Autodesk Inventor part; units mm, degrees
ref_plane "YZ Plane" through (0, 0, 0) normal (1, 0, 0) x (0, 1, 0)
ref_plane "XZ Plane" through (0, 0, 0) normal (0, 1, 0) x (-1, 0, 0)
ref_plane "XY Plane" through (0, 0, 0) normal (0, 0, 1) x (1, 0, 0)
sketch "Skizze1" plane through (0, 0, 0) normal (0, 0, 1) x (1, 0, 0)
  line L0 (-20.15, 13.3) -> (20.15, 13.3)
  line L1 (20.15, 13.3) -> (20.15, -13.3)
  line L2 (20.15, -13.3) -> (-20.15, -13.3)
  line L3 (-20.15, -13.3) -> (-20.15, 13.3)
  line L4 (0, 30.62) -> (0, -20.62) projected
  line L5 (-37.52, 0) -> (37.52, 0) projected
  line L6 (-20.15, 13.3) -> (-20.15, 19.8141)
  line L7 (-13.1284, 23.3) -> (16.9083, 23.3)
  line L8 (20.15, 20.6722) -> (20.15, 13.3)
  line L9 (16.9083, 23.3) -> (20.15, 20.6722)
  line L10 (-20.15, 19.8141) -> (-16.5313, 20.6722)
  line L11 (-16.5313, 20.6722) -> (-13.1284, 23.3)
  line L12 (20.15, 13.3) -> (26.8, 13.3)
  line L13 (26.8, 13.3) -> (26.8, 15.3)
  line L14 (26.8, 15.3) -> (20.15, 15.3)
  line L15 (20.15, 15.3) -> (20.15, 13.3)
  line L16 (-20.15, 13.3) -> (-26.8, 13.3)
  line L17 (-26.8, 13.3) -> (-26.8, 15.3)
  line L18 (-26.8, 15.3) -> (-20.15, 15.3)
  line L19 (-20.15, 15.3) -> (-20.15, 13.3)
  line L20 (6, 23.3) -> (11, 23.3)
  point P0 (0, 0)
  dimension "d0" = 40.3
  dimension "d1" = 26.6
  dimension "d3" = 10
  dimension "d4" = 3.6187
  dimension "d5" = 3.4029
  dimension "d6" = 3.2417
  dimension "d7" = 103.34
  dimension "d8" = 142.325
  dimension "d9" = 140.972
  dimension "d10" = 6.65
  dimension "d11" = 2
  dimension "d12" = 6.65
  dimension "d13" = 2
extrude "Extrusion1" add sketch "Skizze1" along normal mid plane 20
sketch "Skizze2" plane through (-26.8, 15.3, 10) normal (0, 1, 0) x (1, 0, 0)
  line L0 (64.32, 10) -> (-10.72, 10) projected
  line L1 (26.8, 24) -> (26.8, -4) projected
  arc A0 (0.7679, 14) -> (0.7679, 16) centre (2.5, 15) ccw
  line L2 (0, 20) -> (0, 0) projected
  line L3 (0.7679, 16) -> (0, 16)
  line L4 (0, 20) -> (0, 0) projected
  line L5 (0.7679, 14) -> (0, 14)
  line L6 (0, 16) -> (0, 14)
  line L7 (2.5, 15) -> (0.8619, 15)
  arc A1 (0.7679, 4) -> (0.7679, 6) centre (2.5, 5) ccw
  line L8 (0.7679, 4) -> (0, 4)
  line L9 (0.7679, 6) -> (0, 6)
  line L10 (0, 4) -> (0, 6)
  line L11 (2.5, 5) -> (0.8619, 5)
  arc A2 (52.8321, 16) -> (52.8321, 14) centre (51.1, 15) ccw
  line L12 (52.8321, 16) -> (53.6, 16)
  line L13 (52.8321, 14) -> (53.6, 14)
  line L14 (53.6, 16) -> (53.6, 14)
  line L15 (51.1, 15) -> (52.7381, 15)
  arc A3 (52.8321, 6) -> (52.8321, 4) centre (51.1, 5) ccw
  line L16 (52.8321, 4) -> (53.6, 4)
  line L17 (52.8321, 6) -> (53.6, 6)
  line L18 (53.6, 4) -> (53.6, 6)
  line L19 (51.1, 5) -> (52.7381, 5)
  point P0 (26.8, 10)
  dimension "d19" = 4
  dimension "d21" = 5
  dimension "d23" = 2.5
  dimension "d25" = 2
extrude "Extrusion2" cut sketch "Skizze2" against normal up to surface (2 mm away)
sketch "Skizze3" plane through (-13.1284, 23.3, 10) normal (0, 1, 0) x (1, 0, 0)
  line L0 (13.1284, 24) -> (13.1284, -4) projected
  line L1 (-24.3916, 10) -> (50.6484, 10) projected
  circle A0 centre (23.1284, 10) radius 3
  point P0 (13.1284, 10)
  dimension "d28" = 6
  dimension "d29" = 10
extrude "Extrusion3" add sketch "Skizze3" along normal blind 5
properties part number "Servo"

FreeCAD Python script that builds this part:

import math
import FreeCAD as App
import Part
import Sketcher
Q = App.Units.Quantity

doc = App.newDocument("Part")
body = doc.addObject("PartDesign::Body", "Body")

sketch1 = doc.addObject("Sketcher::SketchObject", "Sketch")
body.addObject(sketch1)
sketch1.AttachmentSupport = (doc.XY_Plane, [""])
sketch1.MapMode = "FlatFace"
sketch1.addGeometry(Part.LineSegment(App.Vector(-20.1, 19.8, 0), App.Vector(-20.1, 15.3, 0)), False)
sketch1.addGeometry(Part.LineSegment(App.Vector(-20.1, 15.3, 0), App.Vector(-26.8, 15.3, 0)), False)
sketch1.addGeometry(Part.LineSegment(App.Vector(-26.8, 15.3, 0), App.Vector(-26.8, 13.3, 0)), False)
sketch1.addGeometry(Part.LineSegment(App.Vector(-26.8, 13.3, 0), App.Vector(-20.1, 13.3, 0)), False)
sketch1.addGeometry(Part.LineSegment(App.Vector(-20.1, 13.3, 0), App.Vector(-20.1, -13.3, 0)), False)
sketch1.addGeometry(Part.LineSegment(App.Vector(-20.1, -13.3, 0), App.Vector(20.1, -13.3, 0)), False)
sketch1.addGeometry(Part.LineSegment(App.Vector(20.1, -13.3, 0), App.Vector(20.1, 13.3, 0)), False)
sketch1.addGeometry(Part.LineSegment(App.Vector(20.1, 13.3, 0), App.Vector(26.8, 13.3, 0)), False)
sketch1.addGeometry(Part.LineSegment(App.Vector(26.8, 13.3, 0), App.Vector(26.8, 15.3, 0)), False)
sketch1.addGeometry(Part.LineSegment(App.Vector(26.8, 15.3, 0), App.Vector(20.1, 15.3, 0)), False)
sketch1.addGeometry(Part.LineSegment(App.Vector(20.1, 15.3, 0), App.Vector(20.1, 20.7, 0)), False)
sketch1.addGeometry(Part.LineSegment(App.Vector(20.1, 20.7, 0), App.Vector(16.9, 23.3, 0)), False)
sketch1.addGeometry(Part.LineSegment(App.Vector(16.9, 23.3, 0), App.Vector(-13.1, 23.3, 0)), False)
sketch1.addGeometry(Part.LineSegment(App.Vector(-13.1, 23.3, 0), App.Vector(-16.5, 20.7, 0)), False)
sketch1.addGeometry(Part.LineSegment(App.Vector(-16.5, 20.7, 0), App.Vector(-20.1, 19.8, 0)), False)
sketch1.addConstraint(Sketcher.Constraint("Coincident", 0, 2, 1, 1))
sketch1.addConstraint(Sketcher.Constraint("Coincident", 1, 2, 2, 1))
sketch1.addConstraint(Sketcher.Constraint("Coincident", 2, 2, 3, 1))
sketch1.addConstraint(Sketcher.Constraint("Coincident", 3, 2, 4, 1))
sketch1.addConstraint(Sketcher.Constraint("Coincident", 4, 2, 5, 1))
sketch1.addConstraint(Sketcher.Constraint("Coincident", 5, 2, 6, 1))
sketch1.addConstraint(Sketcher.Constraint("Coincident", 6, 2, 7, 1))
sketch1.addConstraint(Sketcher.Constraint("Coincident", 7, 2, 8, 1))
sketch1.addConstraint(Sketcher.Constraint("Coincident", 8, 2, 9, 1))
sketch1.addConstraint(Sketcher.Constraint("Coincident", 9, 2, 10, 1))
sketch1.addConstraint(Sketcher.Constraint("Coincident", 10, 2, 11, 1))
sketch1.addConstraint(Sketcher.Constraint("Coincident", 11, 2, 12, 1))
sketch1.addConstraint(Sketcher.Constraint("Coincident", 12, 2, 13, 1))
sketch1.addConstraint(Sketcher.Constraint("Coincident", 13, 2, 14, 1))
sketch1.addConstraint(Sketcher.Constraint("Coincident", 14, 2, 0, 1))
sketch1.addConstraint(Sketcher.Constraint("Vertical", 0))
sketch1.addConstraint(Sketcher.Constraint("Horizontal", 1))
sketch1.addConstraint(Sketcher.Constraint("Vertical", 2))
sketch1.addConstraint(Sketcher.Constraint("Horizontal", 3))
sketch1.addConstraint(Sketcher.Constraint("Vertical", 4))
sketch1.addConstraint(Sketcher.Constraint("Horizontal", 5))
sketch1.addConstraint(Sketcher.Constraint("Vertical", 6))
sketch1.addConstraint(Sketcher.Constraint("Horizontal", 7))
sketch1.addConstraint(Sketcher.Constraint("Vertical", 8))
sketch1.addConstraint(Sketcher.Constraint("Horizontal", 9))
sketch1.addConstraint(Sketcher.Constraint("Vertical", 10))
sketch1.addConstraint(Sketcher.Constraint("Horizontal", 12))
sketch1.addConstraint(Sketcher.Constraint("Symmetric", 3, 2, 5, 2, -1, 1))
sketch1.addConstraint(Sketcher.Constraint("Symmetric", 2, 2, 7, 2, -2))
sketch1.addConstraint(Sketcher.Constraint("Symmetric", 0, 2, 9, 2, -2))
sketch1.addConstraint(Sketcher.Constraint("Horizontal", 10, 2, 13, 2))
sketch1.addConstraint(Sketcher.Constraint("Vertical", 0, 2, 3, 2))
sketch1.addConstraint(Sketcher.Constraint("DistanceY", 2, 2, 2, 1, Q("2 mm")))
sketch1.addConstraint(Sketcher.Constraint("DistanceX", 5, 1, 5, 2, Q("40.3 mm")))
sketch1.addConstraint(Sketcher.Constraint("DistanceY", 4, 2, 4, 1, Q("26.6 mm")))
sketch1.addConstraint(Sketcher.Constraint("DistanceY", 6, 2, 11, 2, Q("10 mm")))
sketch1.addConstraint(Sketcher.Constraint("DistanceX", 1, 2, 1, 1, Q("6.65 mm")))
sketch1.addConstraint(Sketcher.Constraint("DistanceX", 13, 2, 12, 2, Q("3.403 mm")))
sketch1.addConstraint(Sketcher.Constraint("Angle", 11, Q("140.971 deg")))
sketch1.addConstraint(Sketcher.Constraint("Angle", 14, Q("-166.66 deg")))
sketch1.addConstraint(Sketcher.Constraint("DistanceX", 11, 2, 10, 2, Q("3.2417 mm")))
sketch1.addConstraint(Sketcher.Constraint("DistanceX", 0, 2, 13, 2, Q("3.6187 mm")))
pad1 = doc.addObject("PartDesign::Pad", "Pad")
body.addObject(pad1)
pad1.Profile = sketch1
pad1.Length = 20
pad1.Midplane = True

sketch2 = doc.addObject("Sketcher::SketchObject", "Sketch001")
body.addObject(sketch2)
sketch2.AttachmentSupport = (doc.XZ_Plane, [""])
sketch2.MapMode = "FlatFace"
sketch2.AttachmentOffset = App.Placement(App.Vector(0, 0, -15.3), App.Rotation())
sketch2.addGeometry(Part.LineSegment(App.Vector(-26.8, -4, 0), App.Vector(-26, -4, 0)), False)
sketch2.addGeometry(Part.ArcOfCircle(Part.Circle(App.Vector(-24.3, -5, 0), App.Vector(0, 0, 1), 2), math.radians(-150), math.radians(150)), False)
sketch2.addGeometry(Part.LineSegment(App.Vector(-26, -6, 0), App.Vector(-26.8, -6, 0)), False)
sketch2.addGeometry(Part.LineSegment(App.Vector(-26.8, -6, 0), App.Vector(-26.8, -4, 0)), False)
sketch2.addGeometry(Part.LineSegment(App.Vector(-26, 4, 0), App.Vector(-26.8, 4, 0)), False)
sketch2.addGeometry(Part.LineSegment(App.Vector(-26.8, 4, 0), App.Vector(-26.8, 6, 0)), False)
sketch2.addGeometry(Part.LineSegment(App.Vector(-26.8, 6, 0), App.Vector(-26, 6, 0)), False)
sketch2.addGeometry(Part.ArcOfCircle(Part.Circle(App.Vector(-24.3, 5, 0), App.Vector(0, 0, 1), 2), math.radians(-150), math.radians(150)), False)
sketch2.addGeometry(Part.LineSegment(App.Vector(26.8, -6, 0), App.Vector(26, -6, 0)), False)
sketch2.addGeometry(Part.ArcOfCircle(Part.Circle(App.Vector(24.3, -5, 0), App.Vector(0, 0, 1), 2), math.radians(30), math.radians(330)), False)
sketch2.addGeometry(Part.LineSegment(App.Vector(26, -4, 0), App.Vector(26.8, -4, 0)), False)
sketch2.addGeometry(Part.LineSegment(App.Vector(26.8, -4, 0), App.Vector(26.8, -6, 0)), False)
sketch2.addGeometry(Part.LineSegment(App.Vector(26.8, 4, 0), App.Vector(26, 4, 0)), False)
sketch2.addGeometry(Part.ArcOfCircle(Part.Circle(App.Vector(24.3, 5, 0), App.Vector(0, 0, 1), 2), math.radians(30), math.radians(330)), False)
sketch2.addGeometry(Part.LineSegment(App.Vector(26, 6, 0), App.Vector(26.8, 6, 0)), False)
sketch2.addGeometry(Part.LineSegment(App.Vector(26.8, 6, 0), App.Vector(26.8, 4, 0)), False)
sketch2.addConstraint(Sketcher.Constraint("Coincident", 0, 2, 1, 2))
sketch2.addConstraint(Sketcher.Constraint("Coincident", 1, 1, 2, 1))
sketch2.addConstraint(Sketcher.Constraint("Coincident", 2, 2, 3, 1))
sketch2.addConstraint(Sketcher.Constraint("Coincident", 3, 2, 0, 1))
sketch2.addConstraint(Sketcher.Constraint("Coincident", 4, 2, 5, 1))
sketch2.addConstraint(Sketcher.Constraint("Coincident", 5, 2, 6, 1))
sketch2.addConstraint(Sketcher.Constraint("Coincident", 6, 2, 7, 2))
sketch2.addConstraint(Sketcher.Constraint("Coincident", 7, 1, 4, 1))
sketch2.addConstraint(Sketcher.Constraint("Coincident", 8, 2, 9, 2))
sketch2.addConstraint(Sketcher.Constraint("Coincident", 9, 1, 10, 1))
sketch2.addConstraint(Sketcher.Constraint("Coincident", 10, 2, 11, 1))
sketch2.addConstraint(Sketcher.Constraint("Coincident", 11, 2, 8, 1))
sketch2.addConstraint(Sketcher.Constraint("Coincident", 12, 2, 13, 2))
sketch2.addConstraint(Sketcher.Constraint("Coincident", 13, 1, 14, 1))
sketch2.addConstraint(Sketcher.Constraint("Coincident", 14, 2, 15, 1))
sketch2.addConstraint(Sketcher.Constraint("Coincident", 15, 2, 12, 1))
sketch2.addConstraint(Sketcher.Constraint("Horizontal", 0))
sketch2.addConstraint(Sketcher.Constraint("Horizontal", 2))
sketch2.addConstraint(Sketcher.Constraint("Vertical", 3))
sketch2.addConstraint(Sketcher.Constraint("Horizontal", 4))
sketch2.addConstraint(Sketcher.Constraint("Vertical", 5))
sketch2.addConstraint(Sketcher.Constraint("Horizontal", 6))
sketch2.addConstraint(Sketcher.Constraint("Horizontal", 8))
sketch2.addConstraint(Sketcher.Constraint("Horizontal", 10))
sketch2.addConstraint(Sketcher.Constraint("Vertical", 11))
sketch2.addConstraint(Sketcher.Constraint("Horizontal", 12))
sketch2.addConstraint(Sketcher.Constraint("Horizontal", 14))
sketch2.addConstraint(Sketcher.Constraint("Vertical", 15))
sketch2.addConstraint(Sketcher.Constraint("Equal", 1, 7))
sketch2.addConstraint(Sketcher.Constraint("Equal", 7, 9))
sketch2.addConstraint(Sketcher.Constraint("Equal", 9, 13))
sketch2.addConstraint(Sketcher.Constraint("Symmetric", 7, 3, 9, 3, -1, 1))
sketch2.addConstraint(Sketcher.Constraint("Symmetric", 1, 3, 13, 3, -1, 1))
sketch2.addConstraint(Sketcher.Constraint("Symmetric", 4, 2, 10, 2, -1, 1))
sketch2.addConstraint(Sketcher.Constraint("Symmetric", 2, 2, 14, 2, -1, 1))
sketch2.addConstraint(Sketcher.Constraint("Symmetric", 1, 3, 9, 3, -2))
sketch2.addConstraint(Sketcher.Constraint("Symmetric", 3, 2, 10, 2, -2))
sketch2.addConstraint(Sketcher.Constraint("Horizontal", 2, 2, 8, 2))
sketch2.addConstraint(Sketcher.Constraint("Horizontal", 7, 1, 12, 2))
sketch2.addConstraint(Sketcher.Constraint("Horizontal", 6, 2, 13, 1))
sketch2.addConstraint(Sketcher.Constraint("Vertical", 0, 2, 1, 1))
sketch2.addConstraint(Sketcher.Constraint("Radius", 1, Q("2 mm")))
sketch2.addConstraint(Sketcher.Constraint("DistanceY", 3, 1, 3, 2, Q("2 mm")))
sketch2.addConstraint(Sketcher.Constraint("DistanceY", 1, 3, -1, 1, Q("5 mm")))
sketch2.addConstraint(Sketcher.Constraint("DistanceX", 2, 2, 1, 3, Q("2.5 mm")))
sketch2.addConstraint(Sketcher.Constraint("DistanceX", 1, 3, -1, 1, Q("24.3 mm")))
pocket1 = doc.addObject("PartDesign::Pocket", "Pocket")
body.addObject(pocket1)
pocket1.Profile = sketch2
pocket1.Length = 2
pocket1.Reversed = True

sketch3 = doc.addObject("Sketcher::SketchObject", "Sketch002")
body.addObject(sketch3)
sketch3.AttachmentSupport = (doc.XZ_Plane, [""])
sketch3.MapMode = "FlatFace"
sketch3.AttachmentOffset = App.Placement(App.Vector(0, 0, -23.3), App.Rotation())
sketch3.addGeometry(Part.Circle(App.Vector(10, 0, 0), App.Vector(0, 0, 1), 3), False)
sketch3.addConstraint(Sketcher.Constraint("PointOnObject", 0, 3, -1))
sketch3.addConstraint(Sketcher.Constraint("Diameter", 0, Q("6 mm")))
sketch3.addConstraint(Sketcher.Constraint("DistanceX", -1, 1, 0, 3, Q("10 mm")))
pad2 = doc.addObject("PartDesign::Pad", "Pad001")
body.addObject(pad2)
pad2.Profile = sketch3
pad2.Length = 5
pad2.Reversed = True

doc.recompute()
